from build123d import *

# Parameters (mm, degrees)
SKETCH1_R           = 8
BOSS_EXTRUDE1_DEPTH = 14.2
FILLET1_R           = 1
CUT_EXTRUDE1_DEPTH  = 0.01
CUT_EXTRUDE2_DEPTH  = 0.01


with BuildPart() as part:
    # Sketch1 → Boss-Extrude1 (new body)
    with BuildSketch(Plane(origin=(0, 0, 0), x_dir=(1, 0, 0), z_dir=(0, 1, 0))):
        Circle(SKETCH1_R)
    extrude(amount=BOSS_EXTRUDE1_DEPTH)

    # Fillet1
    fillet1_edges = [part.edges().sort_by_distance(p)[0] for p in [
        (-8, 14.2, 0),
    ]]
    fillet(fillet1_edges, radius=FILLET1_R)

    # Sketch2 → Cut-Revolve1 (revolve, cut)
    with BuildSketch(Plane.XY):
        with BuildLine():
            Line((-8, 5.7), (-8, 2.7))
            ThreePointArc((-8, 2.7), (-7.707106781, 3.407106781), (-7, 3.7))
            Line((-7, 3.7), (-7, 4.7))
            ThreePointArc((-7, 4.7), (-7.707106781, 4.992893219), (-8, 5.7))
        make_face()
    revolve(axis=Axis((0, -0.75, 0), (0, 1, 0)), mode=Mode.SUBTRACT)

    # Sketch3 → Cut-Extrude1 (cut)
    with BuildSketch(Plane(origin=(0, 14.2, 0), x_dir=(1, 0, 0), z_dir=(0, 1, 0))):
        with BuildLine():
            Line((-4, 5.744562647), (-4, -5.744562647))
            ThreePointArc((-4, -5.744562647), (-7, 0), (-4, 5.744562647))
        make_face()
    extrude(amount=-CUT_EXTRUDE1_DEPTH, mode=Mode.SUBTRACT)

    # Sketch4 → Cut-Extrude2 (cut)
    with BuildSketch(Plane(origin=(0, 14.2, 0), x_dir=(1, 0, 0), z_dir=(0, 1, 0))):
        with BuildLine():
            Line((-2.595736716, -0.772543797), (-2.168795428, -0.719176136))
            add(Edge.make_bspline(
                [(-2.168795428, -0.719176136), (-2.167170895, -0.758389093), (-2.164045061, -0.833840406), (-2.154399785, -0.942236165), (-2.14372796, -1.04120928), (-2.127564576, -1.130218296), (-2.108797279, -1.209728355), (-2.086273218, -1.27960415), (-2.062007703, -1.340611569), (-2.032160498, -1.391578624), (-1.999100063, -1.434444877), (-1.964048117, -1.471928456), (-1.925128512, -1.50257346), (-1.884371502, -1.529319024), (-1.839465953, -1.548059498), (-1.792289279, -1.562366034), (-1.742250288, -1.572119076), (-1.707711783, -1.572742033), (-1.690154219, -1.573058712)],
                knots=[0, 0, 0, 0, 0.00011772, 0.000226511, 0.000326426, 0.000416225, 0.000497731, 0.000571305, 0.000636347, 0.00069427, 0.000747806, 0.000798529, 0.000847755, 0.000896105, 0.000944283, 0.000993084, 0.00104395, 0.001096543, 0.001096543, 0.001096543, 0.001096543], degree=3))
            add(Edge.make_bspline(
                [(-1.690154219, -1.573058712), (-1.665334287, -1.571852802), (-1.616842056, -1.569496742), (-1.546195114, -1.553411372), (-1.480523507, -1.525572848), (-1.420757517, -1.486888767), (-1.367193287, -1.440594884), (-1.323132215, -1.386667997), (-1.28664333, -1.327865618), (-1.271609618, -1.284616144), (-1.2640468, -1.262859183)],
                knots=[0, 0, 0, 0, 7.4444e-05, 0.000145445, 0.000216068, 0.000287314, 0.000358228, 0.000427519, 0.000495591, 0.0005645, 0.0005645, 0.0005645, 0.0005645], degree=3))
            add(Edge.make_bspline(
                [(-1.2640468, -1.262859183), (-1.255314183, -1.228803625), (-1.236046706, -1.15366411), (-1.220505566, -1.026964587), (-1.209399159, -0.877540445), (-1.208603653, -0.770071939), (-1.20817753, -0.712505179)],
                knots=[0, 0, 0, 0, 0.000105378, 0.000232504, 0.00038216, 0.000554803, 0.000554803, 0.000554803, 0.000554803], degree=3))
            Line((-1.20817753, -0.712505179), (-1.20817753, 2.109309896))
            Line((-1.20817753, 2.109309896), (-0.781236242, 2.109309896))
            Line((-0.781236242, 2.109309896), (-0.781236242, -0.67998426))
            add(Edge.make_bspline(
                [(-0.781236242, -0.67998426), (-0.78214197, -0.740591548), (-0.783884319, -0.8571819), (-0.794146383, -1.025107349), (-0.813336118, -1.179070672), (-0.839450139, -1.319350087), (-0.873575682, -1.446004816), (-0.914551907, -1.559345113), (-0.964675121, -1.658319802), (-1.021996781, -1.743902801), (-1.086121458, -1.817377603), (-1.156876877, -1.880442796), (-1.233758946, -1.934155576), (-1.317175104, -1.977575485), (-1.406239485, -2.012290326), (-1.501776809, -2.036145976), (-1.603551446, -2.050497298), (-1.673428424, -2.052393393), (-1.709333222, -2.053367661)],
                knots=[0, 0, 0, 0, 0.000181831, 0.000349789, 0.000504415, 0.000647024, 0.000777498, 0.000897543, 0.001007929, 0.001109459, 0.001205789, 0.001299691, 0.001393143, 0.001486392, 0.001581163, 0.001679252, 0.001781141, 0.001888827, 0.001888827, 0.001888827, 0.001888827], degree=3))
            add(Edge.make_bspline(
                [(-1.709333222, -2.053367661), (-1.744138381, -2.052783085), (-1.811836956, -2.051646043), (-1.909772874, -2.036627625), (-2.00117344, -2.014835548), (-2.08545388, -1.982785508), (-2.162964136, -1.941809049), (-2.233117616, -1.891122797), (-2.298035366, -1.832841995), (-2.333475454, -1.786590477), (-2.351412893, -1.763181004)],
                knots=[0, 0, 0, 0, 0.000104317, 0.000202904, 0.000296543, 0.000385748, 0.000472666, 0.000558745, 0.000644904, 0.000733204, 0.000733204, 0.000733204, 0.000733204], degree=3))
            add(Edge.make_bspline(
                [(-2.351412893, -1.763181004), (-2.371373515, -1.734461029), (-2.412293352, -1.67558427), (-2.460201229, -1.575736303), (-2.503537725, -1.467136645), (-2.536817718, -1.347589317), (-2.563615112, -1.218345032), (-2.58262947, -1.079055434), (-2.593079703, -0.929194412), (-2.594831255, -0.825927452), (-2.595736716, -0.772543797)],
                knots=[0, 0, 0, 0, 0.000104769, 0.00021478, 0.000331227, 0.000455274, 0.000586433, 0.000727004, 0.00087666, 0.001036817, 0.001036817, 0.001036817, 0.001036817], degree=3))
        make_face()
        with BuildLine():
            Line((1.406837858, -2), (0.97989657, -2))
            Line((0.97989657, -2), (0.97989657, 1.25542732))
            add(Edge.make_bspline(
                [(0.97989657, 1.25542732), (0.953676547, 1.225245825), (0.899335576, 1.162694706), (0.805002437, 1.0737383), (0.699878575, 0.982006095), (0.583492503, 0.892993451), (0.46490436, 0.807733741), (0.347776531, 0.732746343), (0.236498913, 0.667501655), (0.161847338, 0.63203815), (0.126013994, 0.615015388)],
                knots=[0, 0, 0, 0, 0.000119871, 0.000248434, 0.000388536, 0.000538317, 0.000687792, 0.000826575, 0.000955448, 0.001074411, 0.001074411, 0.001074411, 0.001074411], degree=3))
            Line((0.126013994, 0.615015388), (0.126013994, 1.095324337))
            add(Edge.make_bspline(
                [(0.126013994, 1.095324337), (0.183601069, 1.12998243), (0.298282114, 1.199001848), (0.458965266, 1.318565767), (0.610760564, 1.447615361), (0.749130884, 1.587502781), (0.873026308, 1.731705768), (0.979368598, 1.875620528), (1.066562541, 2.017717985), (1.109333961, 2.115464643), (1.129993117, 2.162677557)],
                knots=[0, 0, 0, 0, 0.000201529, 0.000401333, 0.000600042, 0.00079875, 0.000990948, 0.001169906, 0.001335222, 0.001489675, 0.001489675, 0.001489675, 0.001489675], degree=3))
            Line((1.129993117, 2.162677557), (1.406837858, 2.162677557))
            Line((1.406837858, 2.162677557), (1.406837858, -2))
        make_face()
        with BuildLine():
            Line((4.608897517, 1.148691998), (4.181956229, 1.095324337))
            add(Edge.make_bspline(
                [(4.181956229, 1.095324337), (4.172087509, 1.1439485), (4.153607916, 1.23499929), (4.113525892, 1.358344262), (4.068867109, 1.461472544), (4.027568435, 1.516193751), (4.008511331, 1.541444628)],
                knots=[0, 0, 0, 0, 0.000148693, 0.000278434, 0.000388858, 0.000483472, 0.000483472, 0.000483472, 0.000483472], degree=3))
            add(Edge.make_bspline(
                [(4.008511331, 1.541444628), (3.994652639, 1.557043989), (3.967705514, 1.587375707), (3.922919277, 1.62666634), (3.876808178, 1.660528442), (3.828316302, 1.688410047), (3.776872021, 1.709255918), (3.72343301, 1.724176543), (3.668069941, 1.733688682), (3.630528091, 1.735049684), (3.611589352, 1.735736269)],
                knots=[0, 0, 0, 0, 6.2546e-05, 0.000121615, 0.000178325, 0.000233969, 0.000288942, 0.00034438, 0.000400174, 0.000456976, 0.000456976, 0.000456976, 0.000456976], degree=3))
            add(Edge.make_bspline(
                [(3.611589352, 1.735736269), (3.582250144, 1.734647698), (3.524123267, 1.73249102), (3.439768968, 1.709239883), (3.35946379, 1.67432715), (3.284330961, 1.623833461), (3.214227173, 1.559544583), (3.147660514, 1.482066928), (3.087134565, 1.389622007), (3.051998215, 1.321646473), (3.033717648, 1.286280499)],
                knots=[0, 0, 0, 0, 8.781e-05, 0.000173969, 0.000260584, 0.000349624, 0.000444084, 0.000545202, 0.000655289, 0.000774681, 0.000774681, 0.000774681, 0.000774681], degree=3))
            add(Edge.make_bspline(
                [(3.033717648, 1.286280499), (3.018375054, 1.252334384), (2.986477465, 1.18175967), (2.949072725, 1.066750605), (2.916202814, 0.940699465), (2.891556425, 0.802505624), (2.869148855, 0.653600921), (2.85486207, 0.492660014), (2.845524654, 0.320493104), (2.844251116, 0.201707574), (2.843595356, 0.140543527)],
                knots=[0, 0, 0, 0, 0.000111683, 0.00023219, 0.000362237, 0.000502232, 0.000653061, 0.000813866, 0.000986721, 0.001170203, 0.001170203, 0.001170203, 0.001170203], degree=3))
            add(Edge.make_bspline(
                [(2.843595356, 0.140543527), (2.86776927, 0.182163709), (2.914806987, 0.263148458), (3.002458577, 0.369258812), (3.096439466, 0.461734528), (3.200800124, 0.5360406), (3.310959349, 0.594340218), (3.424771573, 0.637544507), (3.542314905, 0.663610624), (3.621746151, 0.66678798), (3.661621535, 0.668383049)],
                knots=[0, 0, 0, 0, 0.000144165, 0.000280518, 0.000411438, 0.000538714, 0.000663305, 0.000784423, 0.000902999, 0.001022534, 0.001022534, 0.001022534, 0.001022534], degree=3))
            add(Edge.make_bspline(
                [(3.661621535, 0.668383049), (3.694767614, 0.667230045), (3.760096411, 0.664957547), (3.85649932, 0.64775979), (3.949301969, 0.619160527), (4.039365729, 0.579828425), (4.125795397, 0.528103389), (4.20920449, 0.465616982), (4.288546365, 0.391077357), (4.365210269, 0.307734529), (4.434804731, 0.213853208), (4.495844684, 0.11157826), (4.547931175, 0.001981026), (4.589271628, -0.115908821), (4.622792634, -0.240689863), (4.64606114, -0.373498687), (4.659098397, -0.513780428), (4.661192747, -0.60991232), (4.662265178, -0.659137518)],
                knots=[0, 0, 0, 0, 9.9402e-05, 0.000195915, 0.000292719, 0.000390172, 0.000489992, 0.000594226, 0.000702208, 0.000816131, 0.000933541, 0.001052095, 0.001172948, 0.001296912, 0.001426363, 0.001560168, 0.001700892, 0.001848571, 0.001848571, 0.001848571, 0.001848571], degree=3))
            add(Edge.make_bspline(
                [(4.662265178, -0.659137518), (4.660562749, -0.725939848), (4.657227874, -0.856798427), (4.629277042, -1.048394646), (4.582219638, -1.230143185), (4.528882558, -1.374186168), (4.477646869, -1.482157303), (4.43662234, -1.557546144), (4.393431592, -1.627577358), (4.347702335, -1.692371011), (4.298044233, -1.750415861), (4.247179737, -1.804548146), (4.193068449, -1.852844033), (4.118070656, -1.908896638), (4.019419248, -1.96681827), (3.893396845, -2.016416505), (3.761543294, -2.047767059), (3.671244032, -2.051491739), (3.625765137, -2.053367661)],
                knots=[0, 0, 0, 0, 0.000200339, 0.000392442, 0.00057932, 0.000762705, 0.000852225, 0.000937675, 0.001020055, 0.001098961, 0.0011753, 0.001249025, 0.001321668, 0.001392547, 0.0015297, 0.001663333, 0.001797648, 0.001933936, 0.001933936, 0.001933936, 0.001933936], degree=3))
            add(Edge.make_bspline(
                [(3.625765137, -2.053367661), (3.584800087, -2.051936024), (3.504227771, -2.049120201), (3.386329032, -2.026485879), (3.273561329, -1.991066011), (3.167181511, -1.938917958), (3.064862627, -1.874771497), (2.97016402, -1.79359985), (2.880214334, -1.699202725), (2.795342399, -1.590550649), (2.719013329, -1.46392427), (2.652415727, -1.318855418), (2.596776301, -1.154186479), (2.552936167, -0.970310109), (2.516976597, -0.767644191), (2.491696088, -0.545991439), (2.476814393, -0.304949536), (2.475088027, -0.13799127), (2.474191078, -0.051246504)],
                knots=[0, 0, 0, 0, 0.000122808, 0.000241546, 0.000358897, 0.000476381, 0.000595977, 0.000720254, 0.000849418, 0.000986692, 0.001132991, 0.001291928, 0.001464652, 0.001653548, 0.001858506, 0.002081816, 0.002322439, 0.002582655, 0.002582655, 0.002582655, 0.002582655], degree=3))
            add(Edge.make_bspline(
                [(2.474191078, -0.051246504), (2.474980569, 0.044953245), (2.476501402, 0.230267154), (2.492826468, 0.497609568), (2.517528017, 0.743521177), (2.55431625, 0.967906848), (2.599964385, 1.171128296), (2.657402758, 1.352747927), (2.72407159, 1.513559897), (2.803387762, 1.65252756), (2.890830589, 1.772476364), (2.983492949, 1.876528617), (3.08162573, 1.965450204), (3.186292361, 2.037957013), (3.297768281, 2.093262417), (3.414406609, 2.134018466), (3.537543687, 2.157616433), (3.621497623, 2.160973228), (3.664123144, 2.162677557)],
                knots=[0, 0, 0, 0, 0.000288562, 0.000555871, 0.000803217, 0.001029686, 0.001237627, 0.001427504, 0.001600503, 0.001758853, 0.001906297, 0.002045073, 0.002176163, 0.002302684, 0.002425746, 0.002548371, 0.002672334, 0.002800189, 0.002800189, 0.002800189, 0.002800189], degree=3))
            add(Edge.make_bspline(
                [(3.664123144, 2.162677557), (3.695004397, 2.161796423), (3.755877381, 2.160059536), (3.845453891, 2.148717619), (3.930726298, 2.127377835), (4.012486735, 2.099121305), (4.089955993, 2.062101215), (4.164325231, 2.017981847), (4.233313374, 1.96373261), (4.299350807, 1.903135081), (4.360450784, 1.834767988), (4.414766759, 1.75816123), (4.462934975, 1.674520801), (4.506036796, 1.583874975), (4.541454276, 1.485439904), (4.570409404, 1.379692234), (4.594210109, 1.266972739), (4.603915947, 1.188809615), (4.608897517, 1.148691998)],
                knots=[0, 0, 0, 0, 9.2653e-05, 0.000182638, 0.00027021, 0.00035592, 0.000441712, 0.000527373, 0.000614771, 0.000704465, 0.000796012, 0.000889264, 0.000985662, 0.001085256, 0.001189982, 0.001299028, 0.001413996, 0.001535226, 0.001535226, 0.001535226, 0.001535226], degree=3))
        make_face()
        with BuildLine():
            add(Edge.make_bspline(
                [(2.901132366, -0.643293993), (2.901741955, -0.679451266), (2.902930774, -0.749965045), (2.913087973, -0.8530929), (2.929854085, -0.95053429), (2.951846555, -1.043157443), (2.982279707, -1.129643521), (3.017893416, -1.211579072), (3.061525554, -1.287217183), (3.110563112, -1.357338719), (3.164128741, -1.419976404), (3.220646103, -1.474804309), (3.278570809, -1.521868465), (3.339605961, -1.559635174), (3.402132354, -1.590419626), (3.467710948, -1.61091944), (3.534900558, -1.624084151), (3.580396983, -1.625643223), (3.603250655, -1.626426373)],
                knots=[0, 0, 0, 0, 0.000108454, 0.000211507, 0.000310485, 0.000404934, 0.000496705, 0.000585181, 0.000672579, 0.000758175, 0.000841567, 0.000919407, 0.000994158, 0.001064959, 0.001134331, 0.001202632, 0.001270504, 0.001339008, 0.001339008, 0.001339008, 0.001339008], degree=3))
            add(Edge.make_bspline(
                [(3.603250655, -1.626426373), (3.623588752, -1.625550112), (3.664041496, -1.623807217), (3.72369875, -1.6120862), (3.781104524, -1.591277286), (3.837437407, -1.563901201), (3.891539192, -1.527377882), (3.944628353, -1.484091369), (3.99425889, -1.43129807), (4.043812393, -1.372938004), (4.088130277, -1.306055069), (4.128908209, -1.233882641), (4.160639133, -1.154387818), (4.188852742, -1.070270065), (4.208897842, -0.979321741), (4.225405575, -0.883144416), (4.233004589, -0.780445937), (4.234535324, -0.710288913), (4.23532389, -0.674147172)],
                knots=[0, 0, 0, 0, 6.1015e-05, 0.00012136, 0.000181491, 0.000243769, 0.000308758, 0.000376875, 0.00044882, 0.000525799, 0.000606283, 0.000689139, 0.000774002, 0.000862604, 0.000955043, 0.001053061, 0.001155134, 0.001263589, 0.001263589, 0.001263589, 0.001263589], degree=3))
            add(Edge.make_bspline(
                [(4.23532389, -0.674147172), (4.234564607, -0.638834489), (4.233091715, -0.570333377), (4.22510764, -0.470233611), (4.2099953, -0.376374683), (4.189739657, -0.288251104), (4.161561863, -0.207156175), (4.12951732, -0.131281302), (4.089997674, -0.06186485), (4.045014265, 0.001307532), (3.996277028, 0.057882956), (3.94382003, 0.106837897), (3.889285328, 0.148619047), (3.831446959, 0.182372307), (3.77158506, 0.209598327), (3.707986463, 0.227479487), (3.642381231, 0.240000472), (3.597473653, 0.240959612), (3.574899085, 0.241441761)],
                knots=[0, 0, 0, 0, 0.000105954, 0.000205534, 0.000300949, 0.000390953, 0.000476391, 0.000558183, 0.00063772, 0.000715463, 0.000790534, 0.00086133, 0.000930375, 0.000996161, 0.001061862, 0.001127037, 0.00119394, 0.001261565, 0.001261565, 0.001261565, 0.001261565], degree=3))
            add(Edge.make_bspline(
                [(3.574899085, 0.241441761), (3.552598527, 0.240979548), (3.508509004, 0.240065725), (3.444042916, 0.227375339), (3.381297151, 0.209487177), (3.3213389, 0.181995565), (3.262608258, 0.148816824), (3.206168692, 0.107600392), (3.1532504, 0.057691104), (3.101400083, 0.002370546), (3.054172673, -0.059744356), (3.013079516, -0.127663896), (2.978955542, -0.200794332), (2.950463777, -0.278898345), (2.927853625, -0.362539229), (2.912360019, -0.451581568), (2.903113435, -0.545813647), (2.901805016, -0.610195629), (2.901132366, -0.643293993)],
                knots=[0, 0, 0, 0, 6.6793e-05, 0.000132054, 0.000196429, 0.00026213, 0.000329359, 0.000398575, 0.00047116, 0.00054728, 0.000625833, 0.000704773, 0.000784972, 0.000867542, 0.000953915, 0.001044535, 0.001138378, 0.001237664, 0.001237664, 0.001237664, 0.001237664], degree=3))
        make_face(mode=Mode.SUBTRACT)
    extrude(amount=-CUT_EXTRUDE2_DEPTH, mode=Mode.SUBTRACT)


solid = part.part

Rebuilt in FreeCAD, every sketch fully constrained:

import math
import FreeCAD as App
import Part
import Sketcher


def edges_at(feature, points):
    """Names of the edges that pass closest to the given points."""
    edges = feature.Shape.Edges
    near = lambda p: min(range(len(edges)), key=lambda i: edges[i].distToShape(Part.Vertex(*p))[0])
    return sorted({f"Edge{near(p) + 1}" for p in points})

doc = App.newDocument("Part")
body = doc.addObject("PartDesign::Body", "Body")

# Sketch on XZ plane
sketch1 = doc.addObject("Sketcher::SketchObject", "Sketch")
body.addObject(sketch1)
sketch1.AttachmentSupport = (doc.XZ_Plane, [""])
sketch1.MapMode = "FlatFace"
sketch1.addGeometry(Part.Circle(App.Vector(0, 0, 0), App.Vector(0, 0, 1), 8), False)
sketch1.addConstraint([
    Sketcher.Constraint("Coincident", 0, 3, -1, 1),
    Sketcher.Constraint("Diameter", 0, 16.0),
])
pad1 = doc.addObject("PartDesign::Pad", "Pad")
body.addObject(pad1)
pad1.Profile = sketch1
pad1.Length = 14.2
pad1.Reversed = True
doc.recompute()

fillet = doc.addObject("PartDesign::Fillet", "Fillet")
body.addObject(fillet)
fillet.Base = (pad1, edges_at(pad1, [(-8, 14.2, 0)]))
fillet.Radius = 1

# Sketch on XY plane
sketch2 = doc.addObject("Sketcher::SketchObject", "Sketch001")
body.addObject(sketch2)
sketch2.AttachmentSupport = (doc.XY_Plane, [""])
sketch2.MapMode = "FlatFace"
sketch2.addGeometry([
    Part.LineSegment(App.Vector(-8, 5.7, 0), App.Vector(-8, 2.7, 0)),
    Part.ArcOfCircle(Part.Circle(App.Vector(-7, 2.7, 0), App.Vector(0, 0, 1), 1), math.radians(90), math.radians(180)),
    Part.LineSegment(App.Vector(-7, 3.7, 0), App.Vector(-7, 4.7, 0)),
    Part.ArcOfCircle(Part.Circle(App.Vector(-7, 5.7, 0), App.Vector(0, 0, 1), 1), math.radians(-180), math.radians(-90)),
], False)
sketch2.addConstraint([
    Sketcher.Constraint("Tangent", 0, 2, 1, 2),
    Sketcher.Constraint("Coincident", 1, 1, 2, 1),
    Sketcher.Constraint("Coincident", 2, 2, 3, 2),
    Sketcher.Constraint("Tangent", 3, 1, 0, 1),
    Sketcher.Constraint("Vertical", 0),
    Sketcher.Constraint("Vertical", 2),
    Sketcher.Constraint("Equal", 1, 3),
    Sketcher.Constraint("Vertical", 3, 3, 1, 1),
    Sketcher.Constraint("Radius", 1, 1.0),
    Sketcher.Constraint("DistanceY", 0, 2, 0, 1, 3.0),
    Sketcher.Constraint("DistanceX", 1, 3, -1, 1, 7.0),
    Sketcher.Constraint("DistanceY", -1, 1, 1, 3, 2.7),
])
groove = doc.addObject("PartDesign::Groove", "Groove")
body.addObject(groove)
groove.Profile = sketch2
groove.ReferenceAxis = (sketch2, ["V_Axis"])
groove.Angle = 360

# Sketch on XZ plane
sketch3 = doc.addObject("Sketcher::SketchObject", "Sketch002")
body.addObject(sketch3)
sketch3.AttachmentSupport = (doc.XZ_Plane, [""])
sketch3.MapMode = "FlatFace"
sketch3.AttachmentOffset = App.Placement(App.Vector(0, 0, -14.2), App.Rotation())
sketch3.addGeometry([
    Part.LineSegment(App.Vector(-4, 5.744563, 0), App.Vector(-4, -5.744563, 0)),
    Part.ArcOfCircle(Part.Circle(App.Vector(0, 0, 0), App.Vector(0, 0, 1), 7), math.radians(124.849905), math.radians(235.150095)),
], False)
sketch3.addConstraint([
    Sketcher.Constraint("Coincident", 0, 1, 1, 1),
    Sketcher.Constraint("Coincident", 1, 2, 0, 2),
    Sketcher.Constraint("Vertical", 0),
    Sketcher.Constraint("Coincident", 1, 3, -1, 1),
    Sketcher.Constraint("Radius", 1, 7.0),
    Sketcher.Constraint("DistanceX", 0, 1, -1, 1, 4.0),
])
pocket1 = doc.addObject("PartDesign::Pocket", "Pocket")
body.addObject(pocket1)
pocket1.Profile = sketch3
pocket1.Length = 0.01
pocket1.Reversed = True

# Sketch on XZ plane
sketch4 = doc.addObject("Sketcher::SketchObject", "Sketch003")
body.addObject(sketch4)
sketch4.AttachmentSupport = (doc.XZ_Plane, [""])
sketch4.MapMode = "FlatFace"
sketch4.AttachmentOffset = App.Placement(App.Vector(0, 0, -14.2), App.Rotation())
sketch4.addGeometry([
    Part.LineSegment(App.Vector(-2.168795, 0.719176, 0), App.Vector(-2.595737, 0.772544, 0)),  # 0
    Part.BSplineCurve([App.Vector(-2.351413, 1.763181, 0), App.Vector(-2.371374, 1.734461, 0), App.Vector(-2.412293, 1.675584, 0), App.Vector(-2.460201, 1.575736, 0), App.Vector(-2.503538, 1.467137, 0), App.Vector(-2.536818, 1.347589, 0), App.Vector(-2.563615, 1.218345, 0), App.Vector(-2.582629, 1.079055, 0), App.Vector(-2.59308, 0.929194, 0), App.Vector(-2.594831, 0.825927, 0), App.Vector(-2.595737, 0.772544, 0)], [4, 1, 1, 1, 1, 1, 1, 1, 4], [0, 0.000104769, 0.00021478, 0.000331227, 0.000455274, 0.000586433, 0.000727004, 0.00087666, 0.001036817], False, 3, [1, 1, 1, 1, 1, 1, 1, 1, 1, 1, 1], False),  # 1
    Part.BSplineCurve([App.Vector(-1.709333, 2.053368, 0), App.Vector(-1.744138, 2.052783, 0), App.Vector(-1.811837, 2.051646, 0), App.Vector(-1.909773, 2.036628, 0), App.Vector(-2.001173, 2.014836, 0), App.Vector(-2.085454, 1.982786, 0), App.Vector(-2.162964, 1.941809, 0), App.Vector(-2.233118, 1.891123, 0), App.Vector(-2.298035, 1.832842, 0), App.Vector(-2.333475, 1.78659, 0), App.Vector(-2.351413, 1.763181, 0)], [4, 1, 1, 1, 1, 1, 1, 1, 4], [0, 0.000104317, 0.000202904, 0.000296543, 0.000385748, 0.000472666, 0.000558745, 0.000644904, 0.000733204], False, 3, [1, 1, 1, 1, 1, 1, 1, 1, 1, 1, 1], False),  # 2
    Part.BSplineCurve([App.Vector(-0.781236, 0.679984, 0), App.Vector(-0.782142, 0.740592, 0), App.Vector(-0.783884, 0.857182, 0), App.Vector(-0.794146, 1.025107, 0), App.Vector(-0.813336, 1.179071, 0), App.Vector(-0.83945, 1.31935, 0), App.Vector(-0.873576, 1.446005, 0), App.Vector(-0.914552, 1.559345, 0), App.Vector(-0.964675, 1.65832, 0), App.Vector(-1.021997, 1.743903, 0), App.Vector(-1.086121, 1.817378, 0), App.Vector(-1.156877, 1.880443, 0), App.Vector(-1.233759, 1.934156, 0), App.Vector(-1.317175, 1.977575, 0), App.Vector(-1.406239, 2.01229, 0), App.Vector(-1.501777, 2.036146, 0), App.Vector(-1.603551, 2.050497, 0), App.Vector(-1.673428, 2.052393, 0), App.Vector(-1.709333, 2.053368, 0)], [4, 1, 1, 1, 1, 1, 1, 1, 1, 1, 1, 1, 1, 1, 1, 1, 4], [0, 0.000181831, 0.000349789, 0.000504415, 0.000647024, 0.000777498, 0.000897543, 0.001007929, 0.001109459, 0.001205789, 0.001299691, 0.001393143, 0.001486392, 0.001581163, 0.001679252, 0.001781141, 0.001888827], False, 3, [1, 1, 1, 1, 1, 1, 1, 1, 1, 1, 1, 1, 1, 1, 1, 1, 1, 1, 1], False),  # 3
    Part.LineSegment(App.Vector(-0.781236, 0.679984, 0), App.Vector(-0.781236, -2.10931, 0)),  # 4
    Part.LineSegment(App.Vector(-0.781236, -2.10931, 0), App.Vector(-1.208178, -2.10931, 0)),  # 5
    Part.LineSegment(App.Vector(-1.208178, -2.10931, 0), App.Vector(-1.208178, 0.712505, 0)),  # 6
    Part.BSplineCurve([App.Vector(-1.264047, 1.262859, 0), App.Vector(-1.255314, 1.228804, 0), App.Vector(-1.236047, 1.153664, 0), App.Vector(-1.220506, 1.026965, 0), App.Vector(-1.209399, 0.87754, 0), App.Vector(-1.208604, 0.770072, 0), App.Vector(-1.208178, 0.712505, 0)], [4, 1, 1, 1, 4], [0, 0.000105378, 0.000232504, 0.00038216, 0.000554803], False, 3, [1, 1, 1, 1, 1, 1, 1], False),  # 7
    Part.BSplineCurve([App.Vector(-1.690154, 1.573059, 0), App.Vector(-1.665334, 1.571853, 0), App.Vector(-1.616842, 1.569497, 0), App.Vector(-1.546195, 1.553411, 0), App.Vector(-1.480524, 1.525573, 0), App.Vector(-1.420758, 1.486889, 0), App.Vector(-1.367193, 1.440595, 0), App.Vector(-1.323132, 1.386668, 0), App.Vector(-1.286643, 1.327866, 0), App.Vector(-1.27161, 1.284616, 0), App.Vector(-1.264047, 1.262859, 0)], [4, 1, 1, 1, 1, 1, 1, 1, 4], [0, 0.000074444, 0.000145445, 0.000216068, 0.000287314, 0.000358228, 0.000427519, 0.000495591, 0.0005645], False, 3, [1, 1, 1, 1, 1, 1, 1, 1, 1, 1, 1], False),  # 8
    Part.BSplineCurve([App.Vector(-2.168795, 0.719176, 0), App.Vector(-2.167171, 0.758389, 0), App.Vector(-2.164045, 0.83384, 0), App.Vector(-2.1544, 0.942236, 0), App.Vector(-2.143728, 1.041209, 0), App.Vector(-2.127565, 1.130218, 0), App.Vector(-2.108797, 1.209728, 0), App.Vector(-2.086273, 1.279604, 0), App.Vector(-2.062008, 1.340612, 0), App.Vector(-2.03216, 1.391579, 0), App.Vector(-1.9991, 1.434445, 0), App.Vector(-1.964048, 1.471928, 0), App.Vector(-1.925129, 1.502573, 0), App.Vector(-1.884372, 1.529319, 0), App.Vector(-1.839466, 1.548059, 0), App.Vector(-1.792289, 1.562366, 0), App.Vector(-1.74225, 1.572119, 0), App.Vector(-1.707712, 1.572742, 0), App.Vector(-1.690154, 1.573059, 0)], [4, 1, 1, 1, 1, 1, 1, 1, 1, 1, 1, 1, 1, 1, 1, 1, 4], [0, 0.00011772, 0.000226511, 0.000326426, 0.000416225, 0.000497731, 0.000571305, 0.000636347, 0.00069427, 0.000747806, 0.000798529, 0.000847755, 0.000896105, 0.000944283, 0.000993084, 0.00104395, 0.001096543], False, 3, [1, 1, 1, 1, 1, 1, 1, 1, 1, 1, 1, 1, 1, 1, 1, 1, 1, 1, 1], False),  # 9
    Part.LineSegment(App.Vector(0.979897, 2, 0), App.Vector(1.406838, 2, 0)),  # 10
    Part.LineSegment(App.Vector(1.406838, 2, 0), App.Vector(1.406838, -2.162678, 0)),  # 11
    Part.LineSegment(App.Vector(1.406838, -2.162678, 0), App.Vector(1.129993, -2.162678, 0)),  # 12
    Part.BSplineCurve([App.Vector(0.126014, -1.095324, 0), App.Vector(0.183601, -1.129982, 0), App.Vector(0.298282, -1.199002, 0), App.Vector(0.458965, -1.318566, 0), App.Vector(0.610761, -1.447615, 0), App.Vector(0.749131, -1.587503, 0), App.Vector(0.873026, -1.731706, 0), App.Vector(0.979369, -1.875621, 0), App.Vector(1.066563, -2.017718, 0), App.Vector(1.109334, -2.115465, 0), App.Vector(1.129993, -2.162678, 0)], [4, 1, 1, 1, 1, 1, 1, 1, 4], [0, 0.000201529, 0.000401333, 0.000600042, 0.00079875, 0.000990948, 0.001169906, 0.001335222, 0.001489675], False, 3, [1, 1, 1, 1, 1, 1, 1, 1, 1, 1, 1], False),  # 13
    Part.LineSegment(App.Vector(0.126014, -1.095324, 0), App.Vector(0.126014, -0.615015, 0)),  # 14
    Part.BSplineCurve([App.Vector(0.979897, -1.255427, 0), App.Vector(0.953677, -1.225246, 0), App.Vector(0.899336, -1.162695, 0), App.Vector(0.805002, -1.073738, 0), App.Vector(0.699879, -0.982006, 0), App.Vector(0.583493, -0.892993, 0), App.Vector(0.464904, -0.807734, 0), App.Vector(0.347777, -0.732746, 0), App.Vector(0.236499, -0.667502, 0), App.Vector(0.161847, -0.632038, 0), App.Vector(0.126014, -0.615015, 0)], [4, 1, 1, 1, 1, 1, 1, 1, 4], [0, 0.000119871, 0.000248434, 0.000388536, 0.000538317, 0.000687792, 0.000826575, 0.000955448, 0.001074411], False, 3, [1, 1, 1, 1, 1, 1, 1, 1, 1, 1, 1], False),  # 15
    Part.LineSegment(App.Vector(0.979897, -1.255427, 0), App.Vector(0.979897, 2, 0)),  # 16
    Part.LineSegment(App.Vector(4.181956, -1.095324, 0), App.Vector(4.608898, -1.148692, 0)),  # 17
    Part.BSplineCurve([App.Vector(3.664123, -2.162678, 0), App.Vector(3.695004, -2.161796, 0), App.Vector(3.755877, -2.16006, 0), App.Vector(3.845454, -2.148718, 0), App.Vector(3.930726, -2.127378, 0), App.Vector(4.012487, -2.099121, 0), App.Vector(4.089956, -2.062101, 0), App.Vector(4.164325, -2.017982, 0), App.Vector(4.233313, -1.963733, 0), App.Vector(4.299351, -1.903135, 0), App.Vector(4.360451, -1.834768, 0), App.Vector(4.414767, -1.758161, 0), App.Vector(4.462935, -1.674521, 0), App.Vector(4.506037, -1.583875, 0), App.Vector(4.541454, -1.48544, 0), App.Vector(4.570409, -1.379692, 0), App.Vector(4.59421, -1.266973, 0), App.Vector(4.603916, -1.18881, 0), App.Vector(4.608898, -1.148692, 0)], [4, 1, 1, 1, 1, 1, 1, 1, 1, 1, 1, 1, 1, 1, 1, 1, 4], [0, 0.000092653, 0.000182638, 0.00027021, 0.00035592, 0.000441712, 0.000527373, 0.000614771, 0.000704465, 0.000796012, 0.000889264, 0.000985662, 0.001085256, 0.001189982, 0.001299028, 0.001413996, 0.001535226], False, 3, [1, 1, 1, 1, 1, 1, 1, 1, 1, 1, 1, 1, 1, 1, 1, 1, 1, 1, 1], False),  # 18
    Part.BSplineCurve([App.Vector(2.474191, 0.051247, 0), App.Vector(2.474981, -0.044953, 0), App.Vector(2.476501, -0.230267, 0), App.Vector(2.492826, -0.49761, 0), App.Vector(2.517528, -0.743521, 0), App.Vector(2.554316, -0.967907, 0), App.Vector(2.599964, -1.171128, 0), App.Vector(2.657403, -1.352748, 0), App.Vector(2.724072, -1.51356, 0), App.Vector(2.803388, -1.652528, 0), App.Vector(2.890831, -1.772476, 0), App.Vector(2.983493, -1.876529, 0), App.Vector(3.081626, -1.96545, 0), App.Vector(3.186292, -2.037957, 0), App.Vector(3.297768, -2.093262, 0), App.Vector(3.414407, -2.134018, 0), App.Vector(3.537544, -2.157616, 0), App.Vector(3.621498, -2.160973, 0), App.Vector(3.664123, -2.162678, 0)], [4, 1, 1, 1, 1, 1, 1, 1, 1, 1, 1, 1, 1, 1, 1, 1, 4], [0, 0.000288562, 0.000555871, 0.000803217, 0.001029686, 0.001237627, 0.001427504, 0.001600503, 0.001758853, 0.001906297, 0.002045073, 0.002176163, 0.002302684, 0.002425746, 0.002548371, 0.002672334, 0.002800189], False, 3, [1, 1, 1, 1, 1, 1, 1, 1, 1, 1, 1, 1, 1, 1, 1, 1, 1, 1, 1], False),  # 19
    Part.BSplineCurve([App.Vector(3.625765, 2.053368, 0), App.Vector(3.5848, 2.051936, 0), App.Vector(3.504228, 2.04912, 0), App.Vector(3.386329, 2.026486, 0), App.Vector(3.273561, 1.991066, 0), App.Vector(3.167182, 1.938918, 0), App.Vector(3.064863, 1.874771, 0), App.Vector(2.970164, 1.7936, 0), App.Vector(2.880214, 1.699203, 0), App.Vector(2.795342, 1.590551, 0), App.Vector(2.719013, 1.463924, 0), App.Vector(2.652416, 1.318855, 0), App.Vector(2.596776, 1.154186, 0), App.Vector(2.552936, 0.97031, 0), App.Vector(2.516977, 0.767644, 0), App.Vector(2.491696, 0.545991, 0), App.Vector(2.476814, 0.30495, 0), App.Vector(2.475088, 0.137991, 0), App.Vector(2.474191, 0.051247, 0)], [4, 1, 1, 1, 1, 1, 1, 1, 1, 1, 1, 1, 1, 1, 1, 1, 4], [0, 0.000122808, 0.000241546, 0.000358897, 0.000476381, 0.000595977, 0.000720254, 0.000849418, 0.000986692, 0.001132991, 0.001291928, 0.001464652, 0.001653548, 0.001858506, 0.002081816, 0.002322439, 0.002582655], False, 3, [1, 1, 1, 1, 1, 1, 1, 1, 1, 1, 1, 1, 1, 1, 1, 1, 1, 1, 1], False),  # 20
    Part.BSplineCurve([App.Vector(4.662265, 0.659138, 0), App.Vector(4.660563, 0.72594, 0), App.Vector(4.657228, 0.856798, 0), App.Vector(4.629277, 1.048395, 0), App.Vector(4.58222, 1.230143, 0), App.Vector(4.528883, 1.374186, 0), App.Vector(4.477647, 1.482157, 0), App.Vector(4.436622, 1.557546, 0), App.Vector(4.393432, 1.627577, 0), App.Vector(4.347702, 1.692371, 0), App.Vector(4.298044, 1.750416, 0), App.Vector(4.24718, 1.804548, 0), App.Vector(4.193068, 1.852844, 0), App.Vector(4.118071, 1.908897, 0), App.Vector(4.019419, 1.966818, 0), App.Vector(3.893397, 2.016417, 0), App.Vector(3.761543, 2.047767, 0), App.Vector(3.671244, 2.051492, 0), App.Vector(3.625765, 2.053368, 0)], [4, 1, 1, 1, 1, 1, 1, 1, 1, 1, 1, 1, 1, 1, 1, 1, 4], [0, 0.000200339, 0.000392442, 0.00057932, 0.000762705, 0.000852225, 0.000937675, 0.001020055, 0.001098961, 0.0011753, 0.001249025, 0.001321668, 0.001392547, 0.0015297, 0.001663333, 0.001797648, 0.001933936], False, 3, [1, 1, 1, 1, 1, 1, 1, 1, 1, 1, 1, 1, 1, 1, 1, 1, 1, 1, 1], False),  # 21
    Part.BSplineCurve([App.Vector(3.661622, -0.668383, 0), App.Vector(3.694768, -0.66723, 0), App.Vector(3.760096, -0.664958, 0), App.Vector(3.856499, -0.64776, 0), App.Vector(3.949302, -0.619161, 0), App.Vector(4.039366, -0.579828, 0), App.Vector(4.125795, -0.528103, 0), App.Vector(4.209204, -0.465617, 0), App.Vector(4.288546, -0.391077, 0), App.Vector(4.36521, -0.307735, 0), App.Vector(4.434805, -0.213853, 0), App.Vector(4.495845, -0.111578, 0), App.Vector(4.547931, -0.001981, 0), App.Vector(4.589272, 0.115909, 0), App.Vector(4.622793, 0.24069, 0), App.Vector(4.646061, 0.373499, 0), App.Vector(4.659098, 0.51378, 0), App.Vector(4.661193, 0.609912, 0), App.Vector(4.662265, 0.659138, 0)], [4, 1, 1, 1, 1, 1, 1, 1, 1, 1, 1, 1, 1, 1, 1, 1, 4], [0, 0.000099402, 0.000195915, 0.000292719, 0.000390172, 0.000489992, 0.000594226, 0.000702208, 0.000816131, 0.000933541, 0.001052095, 0.001172948, 0.001296912, 0.001426363, 0.001560168, 0.001700892, 0.001848571], False, 3, [1, 1, 1, 1, 1, 1, 1, 1, 1, 1, 1, 1, 1, 1, 1, 1, 1, 1, 1], False),  # 22
    Part.BSplineCurve([App.Vector(2.843595, -0.140544, 0), App.Vector(2.867769, -0.182164, 0), App.Vector(2.914807, -0.263148, 0), App.Vector(3.002459, -0.369259, 0), App.Vector(3.096439, -0.461735, 0), App.Vector(3.2008, -0.536041, 0), App.Vector(3.310959, -0.59434, 0), App.Vector(3.424772, -0.637545, 0), App.Vector(3.542315, -0.663611, 0), App.Vector(3.621746, -0.666788, 0), App.Vector(3.661622, -0.668383, 0)], [4, 1, 1, 1, 1, 1, 1, 1, 4], [0, 0.000144165, 0.000280518, 0.000411438, 0.000538714, 0.000663305, 0.000784423, 0.000902999, 0.001022534], False, 3, [1, 1, 1, 1, 1, 1, 1, 1, 1, 1, 1], False),  # 23
    Part.BSplineCurve([App.Vector(3.033718, -1.28628, 0), App.Vector(3.018375, -1.252334, 0), App.Vector(2.986477, -1.18176, 0), App.Vector(2.949073, -1.066751, 0), App.Vector(2.916203, -0.940699, 0), App.Vector(2.891556, -0.802506, 0), App.Vector(2.869149, -0.653601, 0), App.Vector(2.854862, -0.49266, 0), App.Vector(2.845525, -0.320493, 0), App.Vector(2.844251, -0.201708, 0), App.Vector(2.843595, -0.140544, 0)], [4, 1, 1, 1, 1, 1, 1, 1, 4], [0, 0.000111683, 0.00023219, 0.000362237, 0.000502232, 0.000653061, 0.000813866, 0.000986721, 0.001170203], False, 3, [1, 1, 1, 1, 1, 1, 1, 1, 1, 1, 1], False),  # 24
    Part.BSplineCurve([App.Vector(3.611589, -1.735736, 0), App.Vector(3.58225, -1.734648, 0), App.Vector(3.524123, -1.732491, 0), App.Vector(3.439769, -1.70924, 0), App.Vector(3.359464, -1.674327, 0), App.Vector(3.284331, -1.623833, 0), App.Vector(3.214227, -1.559545, 0), App.Vector(3.147661, -1.482067, 0), App.Vector(3.087135, -1.389622, 0), App.Vector(3.051998, -1.321646, 0), App.Vector(3.033718, -1.28628, 0)], [4, 1, 1, 1, 1, 1, 1, 1, 4], [0, 0.00008781, 0.000173969, 0.000260584, 0.000349624, 0.000444084, 0.000545202, 0.000655289, 0.000774681], False, 3, [1, 1, 1, 1, 1, 1, 1, 1, 1, 1, 1], False),  # 25
    Part.BSplineCurve([App.Vector(4.008511, -1.541445, 0), App.Vector(3.994653, -1.557044, 0), App.Vector(3.967706, -1.587376, 0), App.Vector(3.922919, -1.626666, 0), App.Vector(3.876808, -1.660528, 0), App.Vector(3.828316, -1.68841, 0), App.Vector(3.776872, -1.709256, 0), App.Vector(3.723433, -1.724177, 0), App.Vector(3.66807, -1.733689, 0), App.Vector(3.630528, -1.73505, 0), App.Vector(3.611589, -1.735736, 0)], [4, 1, 1, 1, 1, 1, 1, 1, 4], [0, 0.000062546, 0.000121615, 0.000178325, 0.000233969, 0.000288942, 0.00034438, 0.000400174, 0.000456976], False, 3, [1, 1, 1, 1, 1, 1, 1, 1, 1, 1, 1], False),  # 26
    Part.BSplineCurve([App.Vector(4.181956, -1.095324, 0), App.Vector(4.172088, -1.143949, 0), App.Vector(4.153608, -1.234999, 0), App.Vector(4.113526, -1.358344, 0), App.Vector(4.068867, -1.461473, 0), App.Vector(4.027568, -1.516194, 0), App.Vector(4.008511, -1.541445, 0)], [4, 1, 1, 1, 4], [0, 0.000148693, 0.000278434, 0.000388858, 0.000483472], False, 3, [1, 1, 1, 1, 1, 1, 1], False),  # 27
    Part.BSplineCurve([App.Vector(3.574899, -0.241442, 0), App.Vector(3.552599, -0.24098, 0), App.Vector(3.508509, -0.240066, 0), App.Vector(3.444043, -0.227375, 0), App.Vector(3.381297, -0.209487, 0), App.Vector(3.321339, -0.181996, 0), App.Vector(3.262608, -0.148817, 0), App.Vector(3.206169, -0.1076, 0), App.Vector(3.15325, -0.057691, 0), App.Vector(3.1014, -0.002371, 0), App.Vector(3.054173, 0.059744, 0), App.Vector(3.01308, 0.127664, 0), App.Vector(2.978956, 0.200794, 0), App.Vector(2.950464, 0.278898, 0), App.Vector(2.927854, 0.362539, 0), App.Vector(2.91236, 0.451582, 0), App.Vector(2.903113, 0.545814, 0), App.Vector(2.901805, 0.610196, 0), App.Vector(2.901132, 0.643294, 0)], [4, 1, 1, 1, 1, 1, 1, 1, 1, 1, 1, 1, 1, 1, 1, 1, 4], [0, 0.000066793, 0.000132054, 0.000196429, 0.00026213, 0.000329359, 0.000398575, 0.00047116, 0.00054728, 0.000625833, 0.000704773, 0.000784972, 0.000867542, 0.000953915, 0.001044535, 0.001138378, 0.001237664], False, 3, [1, 1, 1, 1, 1, 1, 1, 1, 1, 1, 1, 1, 1, 1, 1, 1, 1, 1, 1], False),  # 28
    Part.BSplineCurve([App.Vector(4.235324, 0.674147, 0), App.Vector(4.234565, 0.638834, 0), App.Vector(4.233092, 0.570333, 0), App.Vector(4.225108, 0.470234, 0), App.Vector(4.209995, 0.376375, 0), App.Vector(4.18974, 0.288251, 0), App.Vector(4.161562, 0.207156, 0), App.Vector(4.129517, 0.131281, 0), App.Vector(4.089998, 0.061865, 0), App.Vector(4.045014, -0.001308, 0), App.Vector(3.996277, -0.057883, 0), App.Vector(3.94382, -0.106838, 0), App.Vector(3.889285, -0.148619, 0), App.Vector(3.831447, -0.182372, 0), App.Vector(3.771585, -0.209598, 0), App.Vector(3.707986, -0.227479, 0), App.Vector(3.642381, -0.24, 0), App.Vector(3.597474, -0.24096, 0), App.Vector(3.574899, -0.241442, 0)], [4, 1, 1, 1, 1, 1, 1, 1, 1, 1, 1, 1, 1, 1, 1, 1, 4], [0, 0.000105954, 0.000205534, 0.000300949, 0.000390953, 0.000476391, 0.000558183, 0.00063772, 0.000715463, 0.000790534, 0.00086133, 0.000930375, 0.000996161, 0.001061862, 0.001127037, 0.00119394, 0.001261565], False, 3, [1, 1, 1, 1, 1, 1, 1, 1, 1, 1, 1, 1, 1, 1, 1, 1, 1, 1, 1], False),  # 29
    Part.BSplineCurve([App.Vector(3.603251, 1.626426, 0), App.Vector(3.623589, 1.62555, 0), App.Vector(3.664041, 1.623807, 0), App.Vector(3.723699, 1.612086, 0), App.Vector(3.781105, 1.591277, 0), App.Vector(3.837437, 1.563901, 0), App.Vector(3.891539, 1.527378, 0), App.Vector(3.944628, 1.484091, 0), App.Vector(3.994259, 1.431298, 0), App.Vector(4.043812, 1.372938, 0), App.Vector(4.08813, 1.306055, 0), App.Vector(4.128908, 1.233883, 0), App.Vector(4.160639, 1.154388, 0), App.Vector(4.188853, 1.07027, 0), App.Vector(4.208898, 0.979322, 0), App.Vector(4.225406, 0.883144, 0), App.Vector(4.233005, 0.780446, 0), App.Vector(4.234535, 0.710289, 0), App.Vector(4.235324, 0.674147, 0)], [4, 1, 1, 1, 1, 1, 1, 1, 1, 1, 1, 1, 1, 1, 1, 1, 4], [0, 0.000061015, 0.00012136, 0.000181491, 0.000243769, 0.000308758, 0.000376875, 0.00044882, 0.000525799, 0.000606283, 0.000689139, 0.000774002, 0.000862604, 0.000955043, 0.001053061, 0.001155134, 0.001263589], False, 3, [1, 1, 1, 1, 1, 1, 1, 1, 1, 1, 1, 1, 1, 1, 1, 1, 1, 1, 1], False),  # 30
    Part.BSplineCurve([App.Vector(2.901132, 0.643294, 0), App.Vector(2.901742, 0.679451, 0), App.Vector(2.902931, 0.749965, 0), App.Vector(2.913088, 0.853093, 0), App.Vector(2.929854, 0.950534, 0), App.Vector(2.951847, 1.043157, 0), App.Vector(2.98228, 1.129644, 0), App.Vector(3.017893, 1.211579, 0), App.Vector(3.061526, 1.287217, 0), App.Vector(3.110563, 1.357339, 0), App.Vector(3.164129, 1.419976, 0), App.Vector(3.220646, 1.474804, 0), App.Vector(3.278571, 1.521868, 0), App.Vector(3.339606, 1.559635, 0), App.Vector(3.402132, 1.59042, 0), App.Vector(3.467711, 1.610919, 0), App.Vector(3.534901, 1.624084, 0), App.Vector(3.580397, 1.625643, 0), App.Vector(3.603251, 1.626426, 0)], [4, 1, 1, 1, 1, 1, 1, 1, 1, 1, 1, 1, 1, 1, 1, 1, 4], [0, 0.000108454, 0.000211507, 0.000310485, 0.000404934, 0.000496705, 0.000585181, 0.000672579, 0.000758175, 0.000841567, 0.000919407, 0.000994158, 0.001064959, 0.001134331, 0.001202632, 0.001270504, 0.001339008], False, 3, [1, 1, 1, 1, 1, 1, 1, 1, 1, 1, 1, 1, 1, 1, 1, 1, 1, 1, 1], False),  # 31
], False)
sketch4.addConstraint([
    Sketcher.Constraint("Block", 1),
    Sketcher.Constraint("Block", 2),
    Sketcher.Constraint("Block", 3),
    Sketcher.Constraint("Block", 7),
    Sketcher.Constraint("Block", 8),
    Sketcher.Constraint("Block", 9),
    Sketcher.Constraint("Block", 13),
    Sketcher.Constraint("Block", 15),
    Sketcher.Constraint("Block", 18),
    Sketcher.Constraint("Block", 19),
    Sketcher.Constraint("Block", 20),
    Sketcher.Constraint("Block", 21),
    Sketcher.Constraint("Block", 22),
    Sketcher.Constraint("Block", 23),
    Sketcher.Constraint("Block", 24),
    Sketcher.Constraint("Block", 25),
    Sketcher.Constraint("Block", 26),
    Sketcher.Constraint("Block", 27),
    Sketcher.Constraint("Block", 28),
    Sketcher.Constraint("Block", 29),
    Sketcher.Constraint("Block", 30),
    Sketcher.Constraint("Block", 31),
    Sketcher.Constraint("Coincident", 0, 2, 1, 2),
    Sketcher.Constraint("Coincident", 3, 1, 4, 1),
    Sketcher.Constraint("Coincident", 4, 2, 5, 1),
    Sketcher.Constraint("Coincident", 5, 2, 6, 1),
    Sketcher.Constraint("Coincident", 6, 2, 7, 2),
    Sketcher.Constraint("Coincident", 9, 1, 0, 1),
    Sketcher.Constraint("Coincident", 10, 2, 11, 1),
    Sketcher.Constraint("Coincident", 11, 2, 12, 1),
    Sketcher.Constraint("Coincident", 12, 2, 13, 2),
    Sketcher.Constraint("Coincident", 13, 1, 14, 1),
    Sketcher.Constraint("Coincident", 14, 2, 15, 2),
    Sketcher.Constraint("Coincident", 15, 1, 16, 1),
    Sketcher.Constraint("Coincident", 16, 2, 10, 1),
    Sketcher.Constraint("Coincident", 17, 2, 18, 2),
    Sketcher.Constraint("Coincident", 27, 1, 17, 1),
    Sketcher.Constraint("Vertical", 4),
    Sketcher.Constraint("Horizontal", 5),
    Sketcher.Constraint("Vertical", 6),
    Sketcher.Constraint("Horizontal", 10),
    Sketcher.Constraint("Vertical", 11),
    Sketcher.Constraint("Horizontal", 12),
    Sketcher.Constraint("Vertical", 16),
    Sketcher.Constraint("DistanceY", -1, 1, 10, 2, 2.0),
    Sketcher.Constraint("DistanceX", 10, 1, 10, 2, 0.426941),
    Sketcher.Constraint("DistanceY", 4, 2, 4, 1, 2.789294),
])
pocket2 = doc.addObject("PartDesign::Pocket", "Pocket001")
body.addObject(pocket2)
pocket2.Profile = sketch4
pocket2.Length = 0.01
pocket2.Reversed = True

doc.recompute()
